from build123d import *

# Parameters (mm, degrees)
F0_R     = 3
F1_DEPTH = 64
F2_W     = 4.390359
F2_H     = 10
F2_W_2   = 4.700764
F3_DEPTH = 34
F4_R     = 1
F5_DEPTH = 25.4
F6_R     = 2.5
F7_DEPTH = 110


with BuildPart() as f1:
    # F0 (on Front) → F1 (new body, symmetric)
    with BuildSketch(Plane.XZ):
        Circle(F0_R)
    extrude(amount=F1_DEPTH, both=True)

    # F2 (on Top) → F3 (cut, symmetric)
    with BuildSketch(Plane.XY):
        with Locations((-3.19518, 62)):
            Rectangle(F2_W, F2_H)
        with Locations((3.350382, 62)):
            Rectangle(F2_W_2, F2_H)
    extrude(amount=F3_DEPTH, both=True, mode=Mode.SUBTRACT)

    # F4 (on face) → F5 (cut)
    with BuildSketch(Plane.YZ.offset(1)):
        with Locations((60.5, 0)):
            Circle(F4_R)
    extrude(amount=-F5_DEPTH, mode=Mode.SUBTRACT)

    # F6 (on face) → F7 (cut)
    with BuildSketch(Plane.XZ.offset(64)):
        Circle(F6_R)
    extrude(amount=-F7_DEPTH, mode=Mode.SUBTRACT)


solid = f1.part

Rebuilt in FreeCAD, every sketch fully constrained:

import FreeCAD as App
import Part
import Sketcher

V = App.Vector

doc = App.newDocument("Part")
body = doc.addObject("PartDesign::Body", "Body")

# Sketch on XZ plane
sketch1 = doc.addObject("Sketcher::SketchObject", "Sketch")
body.addObject(sketch1)
sketch1.AttachmentSupport = (doc.XZ_Plane, [""])
sketch1.MapMode = "FlatFace"
sketch1.addGeometry(Part.Circle(V(0, 0, 0), V(0, 0, 1), 3), False)
sketch1.addConstraint([
    Sketcher.Constraint("Coincident", 0, 3, -1, 1),
    Sketcher.Constraint("Diameter", 0, 6.0),
])
pad1 = doc.addObject("PartDesign::Pad", "Pad")
body.addObject(pad1)
pad1.Profile = sketch1
pad1.Length = 128
pad1.Midplane = True

# Sketch on XY plane
sketch2 = doc.addObject("Sketcher::SketchObject", "Sketch001")
body.addObject(sketch2)
sketch2.AttachmentSupport = (doc.XY_Plane, [""])
sketch2.MapMode = "FlatFace"
sketch2.addGeometry([
    Part.LineSegment(V(-5.4, 67, 0), V(-5.4, 57, 0)),  # 0
    Part.LineSegment(V(-5.4, 57, 0), V(-1, 57, 0)),  # 1
    Part.LineSegment(V(-1, 57, 0), V(-1, 67, 0)),  # 2
    Part.LineSegment(V(-1, 67, 0), V(-5.4, 67, 0)),  # 3
    Part.LineSegment(V(1, 67, 0), V(1, 57, 0)),  # 4
    Part.LineSegment(V(1, 57, 0), V(5.7, 57, 0)),  # 5
    Part.LineSegment(V(5.7, 57, 0), V(5.7, 67, 0)),  # 6
    Part.LineSegment(V(5.7, 67, 0), V(1, 67, 0)),  # 7
], False)
sketch2.addConstraint([
    Sketcher.Constraint("Coincident", 0, 2, 1, 1),
    Sketcher.Constraint("Coincident", 1, 2, 2, 1),
    Sketcher.Constraint("Coincident", 2, 2, 3, 1),
    Sketcher.Constraint("Coincident", 3, 2, 0, 1),
    Sketcher.Constraint("Coincident", 4, 2, 5, 1),
    Sketcher.Constraint("Coincident", 5, 2, 6, 1),
    Sketcher.Constraint("Coincident", 6, 2, 7, 1),
    Sketcher.Constraint("Coincident", 7, 2, 4, 1),
    Sketcher.Constraint("Vertical", 0),
    Sketcher.Constraint("Horizontal", 1),
    Sketcher.Constraint("Vertical", 2),
    Sketcher.Constraint("Horizontal", 3),
    Sketcher.Constraint("Vertical", 4),
    Sketcher.Constraint("Horizontal", 5),
    Sketcher.Constraint("Vertical", 6),
    Sketcher.Constraint("Horizontal", 7),
    Sketcher.Constraint("Symmetric", 1, 2, 4, 2, -2),
    Sketcher.Constraint("Horizontal", 3, 2, 6, 2),
    Sketcher.Constraint("DistanceY", 0, 2, 0, 1, 10.0),
    Sketcher.Constraint("DistanceY", -1, 1, 0, 2, 57.0),
    Sketcher.Constraint("DistanceX", 1, 2, -1, 1, 1.000001),
    Sketcher.Constraint("DistanceX", 1, 1, 1, 2, 4.390359),
    Sketcher.Constraint("DistanceX", 5, 1, 5, 2, 4.700764),
])
pocket1 = doc.addObject("PartDesign::Pocket", "Pocket")
body.addObject(pocket1)
pocket1.Profile = sketch2
pocket1.Length = 68
pocket1.Midplane = True

# Sketch on YZ plane
sketch3 = doc.addObject("Sketcher::SketchObject", "Sketch002")
body.addObject(sketch3)
sketch3.AttachmentSupport = (doc.YZ_Plane, [""])
sketch3.MapMode = "FlatFace"
sketch3.AttachmentOffset = App.Placement(V(0, 0, 1), App.Rotation())
sketch3.addGeometry(Part.Circle(V(60.5, 0, 0), V(0, 0, 1), 1), False)
sketch3.addConstraint([
    Sketcher.Constraint("PointOnObject", 0, 3, -1),
    Sketcher.Constraint("Diameter", 0, 2.0),
    Sketcher.Constraint("DistanceX", -1, 1, 0, 3, 60.5),
])
pocket2 = doc.addObject("PartDesign::Pocket", "Pocket001")
body.addObject(pocket2)
pocket2.Profile = sketch3
pocket2.Length = 25.4

# Sketch on XZ plane
sketch4 = doc.addObject("Sketcher::SketchObject", "Sketch003")
body.addObject(sketch4)
sketch4.AttachmentSupport = (doc.XZ_Plane, [""])
sketch4.MapMode = "FlatFace"
sketch4.AttachmentOffset = App.Placement(V(0, 0, 64), App.Rotation())
sketch4.addGeometry(Part.Circle(V(0, 0, 0), V(0, 0, 1), 2.5), False)
sketch4.addConstraint([
    Sketcher.Constraint("Coincident", 0, 3, -1, 1),
    Sketcher.Constraint("Diameter", 0, 5.0),
])
pocket3 = doc.addObject("PartDesign::Pocket", "Pocket002")
body.addObject(pocket3)
pocket3.Profile = sketch4
pocket3.Length = 110

doc.recompute()
